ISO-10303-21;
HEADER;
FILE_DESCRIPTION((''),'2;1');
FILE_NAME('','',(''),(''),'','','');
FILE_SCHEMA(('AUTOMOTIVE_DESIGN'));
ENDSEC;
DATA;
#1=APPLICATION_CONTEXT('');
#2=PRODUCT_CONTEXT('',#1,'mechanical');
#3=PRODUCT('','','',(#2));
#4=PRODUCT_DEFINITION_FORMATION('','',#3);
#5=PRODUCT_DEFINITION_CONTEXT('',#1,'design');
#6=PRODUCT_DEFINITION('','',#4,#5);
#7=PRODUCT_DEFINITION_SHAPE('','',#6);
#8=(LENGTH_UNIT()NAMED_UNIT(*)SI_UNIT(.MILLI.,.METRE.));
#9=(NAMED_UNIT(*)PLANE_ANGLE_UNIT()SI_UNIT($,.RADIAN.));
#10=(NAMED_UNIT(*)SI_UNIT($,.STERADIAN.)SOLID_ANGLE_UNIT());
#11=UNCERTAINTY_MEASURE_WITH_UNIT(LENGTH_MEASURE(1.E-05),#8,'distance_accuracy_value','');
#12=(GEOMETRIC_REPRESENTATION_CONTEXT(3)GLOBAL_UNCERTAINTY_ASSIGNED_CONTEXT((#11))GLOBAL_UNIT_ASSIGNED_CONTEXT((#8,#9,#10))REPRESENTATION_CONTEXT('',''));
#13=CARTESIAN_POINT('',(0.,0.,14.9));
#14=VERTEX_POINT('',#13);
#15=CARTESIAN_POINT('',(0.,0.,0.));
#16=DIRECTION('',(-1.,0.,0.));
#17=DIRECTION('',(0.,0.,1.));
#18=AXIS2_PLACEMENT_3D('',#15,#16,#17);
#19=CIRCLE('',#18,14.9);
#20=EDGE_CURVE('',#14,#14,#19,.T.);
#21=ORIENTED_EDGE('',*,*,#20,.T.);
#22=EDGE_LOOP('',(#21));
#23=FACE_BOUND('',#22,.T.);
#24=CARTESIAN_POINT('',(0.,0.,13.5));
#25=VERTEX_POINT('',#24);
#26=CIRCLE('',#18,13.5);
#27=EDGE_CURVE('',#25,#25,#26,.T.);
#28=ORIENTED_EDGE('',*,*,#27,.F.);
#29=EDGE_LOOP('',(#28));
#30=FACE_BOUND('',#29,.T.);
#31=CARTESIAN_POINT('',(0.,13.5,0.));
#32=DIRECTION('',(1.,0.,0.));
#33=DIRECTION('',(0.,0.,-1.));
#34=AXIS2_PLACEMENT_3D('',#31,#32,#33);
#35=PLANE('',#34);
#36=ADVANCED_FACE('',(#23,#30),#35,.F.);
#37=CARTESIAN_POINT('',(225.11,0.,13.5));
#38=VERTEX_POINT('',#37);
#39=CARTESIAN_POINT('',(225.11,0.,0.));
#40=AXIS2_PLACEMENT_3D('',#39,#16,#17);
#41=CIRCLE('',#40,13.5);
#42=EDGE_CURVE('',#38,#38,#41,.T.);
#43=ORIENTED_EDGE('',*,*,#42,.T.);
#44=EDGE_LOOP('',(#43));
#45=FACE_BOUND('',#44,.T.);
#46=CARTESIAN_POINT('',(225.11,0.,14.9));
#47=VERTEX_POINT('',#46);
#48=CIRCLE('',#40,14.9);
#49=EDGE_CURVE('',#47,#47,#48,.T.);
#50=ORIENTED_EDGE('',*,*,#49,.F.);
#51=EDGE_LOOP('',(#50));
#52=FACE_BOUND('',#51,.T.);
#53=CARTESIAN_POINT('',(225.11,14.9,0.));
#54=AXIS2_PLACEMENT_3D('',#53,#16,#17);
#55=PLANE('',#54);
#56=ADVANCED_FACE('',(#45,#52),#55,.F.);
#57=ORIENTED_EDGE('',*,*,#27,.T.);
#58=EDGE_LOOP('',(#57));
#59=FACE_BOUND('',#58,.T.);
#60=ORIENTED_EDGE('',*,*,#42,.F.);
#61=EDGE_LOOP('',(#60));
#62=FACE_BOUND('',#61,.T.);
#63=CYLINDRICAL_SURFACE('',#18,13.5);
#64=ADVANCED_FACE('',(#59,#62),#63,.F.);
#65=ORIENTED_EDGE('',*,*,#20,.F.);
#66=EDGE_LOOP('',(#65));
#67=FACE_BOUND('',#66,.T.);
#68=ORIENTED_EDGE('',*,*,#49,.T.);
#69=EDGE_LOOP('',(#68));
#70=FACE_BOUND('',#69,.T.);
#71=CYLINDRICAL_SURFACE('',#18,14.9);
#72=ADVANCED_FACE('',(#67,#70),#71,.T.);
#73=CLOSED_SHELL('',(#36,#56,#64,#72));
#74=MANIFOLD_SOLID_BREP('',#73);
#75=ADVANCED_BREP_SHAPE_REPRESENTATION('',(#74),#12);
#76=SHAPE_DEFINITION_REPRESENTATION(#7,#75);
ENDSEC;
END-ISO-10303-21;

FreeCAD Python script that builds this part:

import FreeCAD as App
import Part
import Sketcher
from FreeCAD import Vector
Q = App.Units.Quantity


def add_polygon(sketch, points):
    """Adds a closed chain of lines whose ends are joined by coincident constraints."""
    first, n = sketch.GeometryCount, len(points)
    for a, b in zip(points, points[1:] + points[:1]):
        sketch.addGeometry(Part.LineSegment(App.Vector(*a, 0), App.Vector(*b, 0)), False)
    for i in range(n):
        sketch.addConstraint(Sketcher.Constraint("Coincident", first + i, 2, first + (i + 1) % n, 1))

doc = App.newDocument("Part")
params = doc.addObject("Spreadsheet::Sheet", "Params")
for row, (alias, value) in enumerate([
    ("sketch1_height", "1.4 mm"),
    ("sketch1_width", "225.11 mm"),
    ("revolution_angle", "360 deg"),
], start=1):
    params.set(f"A{row}", alias)
    params.set(f"B{row}", "=" + value)
    params.setAlias(f"B{row}", alias)

body = doc.addObject("PartDesign::Body", "Body")

sketch1 = body.newObject("Sketcher::SketchObject", "Sketch")
sketch1.AttachmentSupport = (doc.getObject("XY_Plane"), [""])
sketch1.MapMode = "FlatFace"
add_polygon(sketch1, [(0, 14.9), (0, 13.5), (225.1, 13.5), (225.1, 14.9)])
sketch1.addConstraint([
    Sketcher.Constraint("Vertical", 0),
    Sketcher.Constraint("Horizontal", 1),
    Sketcher.Constraint("Vertical", 2),
    Sketcher.Constraint("Horizontal", 3),
    Sketcher.Constraint("PointOnObject", 0, 2, -2),
    Sketcher.Constraint("DistanceY", 0, 2, 0, 1, Q("1.4 mm")),
    Sketcher.Constraint("DistanceX", 1, 1, 1, 2, Q("225.11 mm")),
    Sketcher.Constraint("DistanceY", -1, 1, 0, 2, Q("13.5 mm")),
])
sketch1.setExpression("Constraints[9]", "Params.sketch1_height")
sketch1.setExpression("Constraints[10]", "Params.sketch1_width")
revolution = body.newObject("PartDesign::Revolution", "Revolution")
revolution.Profile = sketch1
revolution.ReferenceAxis = (sketch1, ["H_Axis"])
revolution.setExpression("Angle", "Params.revolution_angle")

doc.recompute()
